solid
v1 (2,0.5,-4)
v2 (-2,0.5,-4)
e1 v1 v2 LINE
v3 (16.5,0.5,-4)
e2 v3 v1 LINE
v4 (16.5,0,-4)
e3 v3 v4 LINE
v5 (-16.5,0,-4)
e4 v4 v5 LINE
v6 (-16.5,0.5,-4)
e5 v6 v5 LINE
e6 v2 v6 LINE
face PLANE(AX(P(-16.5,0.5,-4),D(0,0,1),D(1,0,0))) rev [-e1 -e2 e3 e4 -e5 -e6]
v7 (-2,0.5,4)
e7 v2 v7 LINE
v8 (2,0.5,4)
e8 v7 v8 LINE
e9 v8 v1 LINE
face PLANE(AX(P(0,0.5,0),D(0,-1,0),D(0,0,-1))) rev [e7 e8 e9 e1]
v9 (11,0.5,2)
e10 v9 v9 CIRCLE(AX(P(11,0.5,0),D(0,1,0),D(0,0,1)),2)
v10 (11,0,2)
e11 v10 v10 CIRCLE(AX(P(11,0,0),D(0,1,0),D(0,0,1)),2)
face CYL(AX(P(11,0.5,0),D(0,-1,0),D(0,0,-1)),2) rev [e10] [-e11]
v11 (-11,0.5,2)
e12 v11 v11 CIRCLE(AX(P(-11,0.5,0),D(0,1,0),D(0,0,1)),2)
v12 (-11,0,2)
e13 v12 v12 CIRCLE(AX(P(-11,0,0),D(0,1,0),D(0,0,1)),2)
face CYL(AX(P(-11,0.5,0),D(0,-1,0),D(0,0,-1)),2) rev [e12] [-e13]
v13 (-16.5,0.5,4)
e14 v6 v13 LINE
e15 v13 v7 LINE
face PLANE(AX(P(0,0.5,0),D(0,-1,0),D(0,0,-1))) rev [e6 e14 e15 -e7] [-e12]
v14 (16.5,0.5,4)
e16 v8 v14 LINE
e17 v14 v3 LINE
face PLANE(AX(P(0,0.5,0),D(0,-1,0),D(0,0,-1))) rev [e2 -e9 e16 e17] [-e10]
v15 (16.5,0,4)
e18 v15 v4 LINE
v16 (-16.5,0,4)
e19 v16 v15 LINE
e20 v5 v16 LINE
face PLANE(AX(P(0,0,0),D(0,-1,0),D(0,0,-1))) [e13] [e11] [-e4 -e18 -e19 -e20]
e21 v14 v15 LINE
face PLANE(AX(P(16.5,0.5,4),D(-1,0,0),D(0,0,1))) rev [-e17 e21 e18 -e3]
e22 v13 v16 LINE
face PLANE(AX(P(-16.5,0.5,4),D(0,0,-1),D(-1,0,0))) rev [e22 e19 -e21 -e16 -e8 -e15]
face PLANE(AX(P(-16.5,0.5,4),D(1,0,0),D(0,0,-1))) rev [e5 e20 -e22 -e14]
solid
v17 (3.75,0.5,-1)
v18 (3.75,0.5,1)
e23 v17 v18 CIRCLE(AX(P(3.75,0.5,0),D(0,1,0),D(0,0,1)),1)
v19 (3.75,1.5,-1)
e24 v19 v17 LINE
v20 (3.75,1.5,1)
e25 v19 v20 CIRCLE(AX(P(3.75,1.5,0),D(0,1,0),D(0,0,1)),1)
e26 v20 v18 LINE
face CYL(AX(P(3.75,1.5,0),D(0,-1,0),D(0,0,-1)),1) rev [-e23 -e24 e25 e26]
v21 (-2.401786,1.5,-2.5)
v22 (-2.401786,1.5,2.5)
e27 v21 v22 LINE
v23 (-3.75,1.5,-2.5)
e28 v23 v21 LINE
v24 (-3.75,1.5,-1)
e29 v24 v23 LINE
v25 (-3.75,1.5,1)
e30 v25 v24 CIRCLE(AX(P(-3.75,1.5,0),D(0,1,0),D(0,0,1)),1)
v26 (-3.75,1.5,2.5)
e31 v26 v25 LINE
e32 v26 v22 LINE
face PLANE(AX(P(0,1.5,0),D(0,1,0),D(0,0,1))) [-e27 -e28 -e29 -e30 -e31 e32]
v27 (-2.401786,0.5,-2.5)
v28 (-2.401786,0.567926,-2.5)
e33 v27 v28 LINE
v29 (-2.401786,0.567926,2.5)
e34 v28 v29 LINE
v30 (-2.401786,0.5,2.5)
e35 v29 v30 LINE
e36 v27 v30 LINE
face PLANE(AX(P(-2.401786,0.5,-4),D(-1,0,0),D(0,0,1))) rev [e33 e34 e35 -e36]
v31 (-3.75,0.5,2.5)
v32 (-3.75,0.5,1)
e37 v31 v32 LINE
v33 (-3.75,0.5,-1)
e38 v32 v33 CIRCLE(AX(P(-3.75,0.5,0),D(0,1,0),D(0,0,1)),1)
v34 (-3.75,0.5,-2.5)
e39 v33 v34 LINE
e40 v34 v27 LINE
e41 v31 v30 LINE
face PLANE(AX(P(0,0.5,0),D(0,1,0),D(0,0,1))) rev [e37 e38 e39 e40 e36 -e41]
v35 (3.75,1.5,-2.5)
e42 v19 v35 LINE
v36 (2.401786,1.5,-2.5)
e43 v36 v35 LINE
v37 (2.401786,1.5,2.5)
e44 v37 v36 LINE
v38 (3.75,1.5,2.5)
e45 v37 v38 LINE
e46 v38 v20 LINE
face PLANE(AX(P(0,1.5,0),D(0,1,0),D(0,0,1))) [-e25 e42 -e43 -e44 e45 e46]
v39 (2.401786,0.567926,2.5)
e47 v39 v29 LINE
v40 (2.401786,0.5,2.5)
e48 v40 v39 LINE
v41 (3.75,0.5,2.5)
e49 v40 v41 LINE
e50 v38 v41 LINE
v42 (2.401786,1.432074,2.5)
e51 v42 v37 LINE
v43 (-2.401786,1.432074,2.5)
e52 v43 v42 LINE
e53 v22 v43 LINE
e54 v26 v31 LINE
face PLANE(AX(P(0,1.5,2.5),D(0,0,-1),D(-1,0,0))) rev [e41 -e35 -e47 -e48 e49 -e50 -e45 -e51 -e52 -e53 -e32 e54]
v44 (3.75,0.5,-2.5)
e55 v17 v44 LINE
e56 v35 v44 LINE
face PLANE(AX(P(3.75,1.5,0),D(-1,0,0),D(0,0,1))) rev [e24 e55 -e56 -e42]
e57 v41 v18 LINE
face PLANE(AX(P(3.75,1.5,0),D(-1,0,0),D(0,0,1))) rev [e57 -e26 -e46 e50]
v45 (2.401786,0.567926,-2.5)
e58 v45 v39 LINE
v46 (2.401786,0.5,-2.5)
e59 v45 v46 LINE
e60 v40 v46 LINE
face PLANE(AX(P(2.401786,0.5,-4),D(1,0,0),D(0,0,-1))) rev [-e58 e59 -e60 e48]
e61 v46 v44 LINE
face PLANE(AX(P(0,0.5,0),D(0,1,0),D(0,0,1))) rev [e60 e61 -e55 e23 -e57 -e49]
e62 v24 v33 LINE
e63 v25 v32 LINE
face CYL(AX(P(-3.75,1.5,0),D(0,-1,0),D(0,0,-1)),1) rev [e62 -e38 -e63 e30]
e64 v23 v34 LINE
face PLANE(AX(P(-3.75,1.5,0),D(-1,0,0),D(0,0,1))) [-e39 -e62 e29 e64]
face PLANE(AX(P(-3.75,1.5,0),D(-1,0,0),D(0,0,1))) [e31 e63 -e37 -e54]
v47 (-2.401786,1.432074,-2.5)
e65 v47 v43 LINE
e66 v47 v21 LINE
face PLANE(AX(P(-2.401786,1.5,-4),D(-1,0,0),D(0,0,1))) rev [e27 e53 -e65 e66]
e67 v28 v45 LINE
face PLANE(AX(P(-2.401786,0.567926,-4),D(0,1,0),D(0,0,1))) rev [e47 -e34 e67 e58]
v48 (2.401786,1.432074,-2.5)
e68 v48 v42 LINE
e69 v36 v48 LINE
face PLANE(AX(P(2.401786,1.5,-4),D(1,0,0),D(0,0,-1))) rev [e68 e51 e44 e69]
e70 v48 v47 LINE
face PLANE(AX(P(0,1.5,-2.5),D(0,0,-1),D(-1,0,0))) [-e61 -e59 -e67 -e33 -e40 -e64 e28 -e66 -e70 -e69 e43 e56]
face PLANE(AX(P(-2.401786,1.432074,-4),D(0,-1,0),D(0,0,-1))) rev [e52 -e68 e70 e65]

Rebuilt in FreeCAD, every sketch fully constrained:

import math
import FreeCAD as App
import Part
import Sketcher

V = App.Vector
Q = App.Units.Quantity


def add_polygon(sketch, points):
    """Adds a closed chain of lines whose ends are joined by coincident constraints."""
    first, n = sketch.GeometryCount, len(points)
    for a, b in zip(points, points[1:] + points[:1]):
        sketch.addGeometry(Part.LineSegment(App.Vector(*a, 0), App.Vector(*b, 0)), False)
    for i in range(n):
        sketch.addConstraint(Sketcher.Constraint("Coincident", first + i, 2, first + (i + 1) % n, 1))

doc = App.newDocument("Part")
body = doc.addObject("PartDesign::Body", "Body")

# Sketch on XZ plane
sketch1 = doc.addObject("Sketcher::SketchObject", "Sketch")
body.addObject(sketch1)
sketch1.AttachmentSupport = (doc.XZ_Plane, [""])
sketch1.MapMode = "FlatFace"
add_polygon(sketch1, [(-16.5, -4), (-16.5, 4), (16.5, 4), (16.5, -4)])  # lines 0-3
sketch1.addGeometry(Part.Circle(V(-11, 0, 0), V(0, 0, 1), 2), False)  # 4
sketch1.addGeometry(Part.Circle(V(11, 0, 0), V(0, 0, 1), 2), False)  # 5
sketch1.addConstraint(Sketcher.Constraint("Vertical", 0))
sketch1.addConstraint(Sketcher.Constraint("Horizontal", 1))
sketch1.addConstraint(Sketcher.Constraint("Vertical", 2))
sketch1.addConstraint(Sketcher.Constraint("Horizontal", 3))
sketch1.addConstraint(Sketcher.Constraint("Equal", 4, 5))
sketch1.addConstraint(Sketcher.Constraint("Symmetric", 4, 3, 5, 3, -1, 1))
sketch1.addConstraint(Sketcher.Constraint("Symmetric", 0, 2, 2, 2, -1, 1))
sketch1.addConstraint(Sketcher.Constraint("PointOnObject", 4, 3, -1))
sketch1.addConstraint(Sketcher.Constraint("Diameter", 4, Q("4 mm")))
sketch1.addConstraint(Sketcher.Constraint("DistanceX", 1, 1, 1, 2, Q("33 mm")))
sketch1.addConstraint(Sketcher.Constraint("DistanceY", 0, 1, 0, 2, Q("8 mm")))
sketch1.addConstraint(Sketcher.Constraint("DistanceX", 4, 3, -1, 1, Q("11 mm")))
pad1 = doc.addObject("PartDesign::Pad", "Pad")
body.addObject(pad1)
pad1.Profile = sketch1
pad1.Length = 0.5
pad1.Reversed = True
body2 = doc.addObject("PartDesign::Body", "Body001")

# Sketch on XZ plane
sketch2 = doc.addObject("Sketcher::SketchObject", "Sketch001")
body2.addObject(sketch2)
sketch2.AttachmentSupport = (doc.getObject("XZ_Plane001"), [""])
sketch2.MapMode = "FlatFace"
sketch2.AttachmentOffset = App.Placement(V(0, 0, -0.5), App.Rotation())
sketch2.addGeometry(Part.LineSegment(V(-3.75, 1, 0), V(-3.75, 2.5, 0)), False)
sketch2.addGeometry(Part.LineSegment(V(-3.75, 2.5, 0), V(3.75, 2.5, 0)), False)
sketch2.addGeometry(Part.LineSegment(V(3.75, 2.5, 0), V(3.75, 1, 0)), False)
sketch2.addGeometry(Part.ArcOfCircle(Part.Circle(V(3.75, 0, 0), V(0, 0, 1), 1), math.radians(90), math.radians(270)), False)
sketch2.addGeometry(Part.LineSegment(V(3.75, -1, 0), V(3.75, -2.5, 0)), False)
sketch2.addGeometry(Part.LineSegment(V(3.75, -2.5, 0), V(-3.75, -2.5, 0)), False)
sketch2.addGeometry(Part.LineSegment(V(-3.75, -2.5, 0), V(-3.75, -1, 0)), False)
sketch2.addGeometry(Part.ArcOfCircle(Part.Circle(V(-3.75, 0, 0), V(0, 0, 1), 1), math.radians(-90), math.radians(0)), False)
sketch2.addGeometry(Part.ArcOfCircle(Part.Circle(V(-3.75, 0, 0), V(0, 0, 1), 1), math.radians(0), math.radians(90)), False)
sketch2.addConstraint(Sketcher.Constraint("Coincident", 0, 2, 1, 1))
sketch2.addConstraint(Sketcher.Constraint("Coincident", 1, 2, 2, 1))
sketch2.addConstraint(Sketcher.Constraint("Coincident", 2, 2, 3, 1))
sketch2.addConstraint(Sketcher.Constraint("Coincident", 3, 2, 4, 1))
sketch2.addConstraint(Sketcher.Constraint("Coincident", 4, 2, 5, 1))
sketch2.addConstraint(Sketcher.Constraint("Coincident", 5, 2, 6, 1))
sketch2.addConstraint(Sketcher.Constraint("Coincident", 6, 2, 7, 1))
sketch2.addConstraint(Sketcher.Constraint("Tangent", 7, 2, 8, 1))
sketch2.addConstraint(Sketcher.Constraint("Coincident", 8, 2, 0, 1))
sketch2.addConstraint(Sketcher.Constraint("Vertical", 0))
sketch2.addConstraint(Sketcher.Constraint("Horizontal", 1))
sketch2.addConstraint(Sketcher.Constraint("Vertical", 2))
sketch2.addConstraint(Sketcher.Constraint("Vertical", 4))
sketch2.addConstraint(Sketcher.Constraint("Horizontal", 5))
sketch2.addConstraint(Sketcher.Constraint("Vertical", 6))
sketch2.addConstraint(Sketcher.Constraint("Equal", 3, 7))
sketch2.addConstraint(Sketcher.Constraint("Equal", 7, 8))
sketch2.addConstraint(Sketcher.Constraint("Symmetric", 3, 3, 7, 3, -1, 1))
sketch2.addConstraint(Sketcher.Constraint("Symmetric", 0, 2, 4, 2, -1, 1))
sketch2.addConstraint(Sketcher.Constraint("Symmetric", 3, 2, 6, 2, -2))
sketch2.addConstraint(Sketcher.Constraint("PointOnObject", 7, 2, -1))
sketch2.addConstraint(Sketcher.Constraint("Vertical", 8, 3, 0, 2))
sketch2.addConstraint(Sketcher.Constraint("Vertical", 3, 3, 1, 2))
sketch2.addConstraint(Sketcher.Constraint("Radius", 3, Q("1 mm")))
sketch2.addConstraint(Sketcher.Constraint("DistanceX", 1, 1, 1, 2, Q("7.5 mm")))
sketch2.addConstraint(Sketcher.Constraint("DistanceY", 0, 1, 0, 2, Q("1.5 mm")))
pad2 = doc.addObject("PartDesign::Pad", "Pad001")
body2.addObject(pad2)
pad2.Profile = sketch2
pad2.Length = 1
pad2.Reversed = True

# Sketch on XY plane
sketch3 = doc.addObject("Sketcher::SketchObject", "Sketch002")
body2.addObject(sketch3)
sketch3.AttachmentSupport = (doc.getObject("XY_Plane001"), [""])
sketch3.MapMode = "FlatFace"
sketch3.AttachmentOffset = App.Placement(V(0, 0, 2.5), App.Rotation())
add_polygon(sketch3, [(-2.401786, 1.5), (-2.401786, 1.432074), (2.401786, 1.432074), (2.401786, 1.5)])  # lines 0-3
add_polygon(sketch3, [(-2.401786, 0.567926), (-2.401786, 0.5), (2.401786, 0.5), (2.401786, 0.567926)])  # lines 4-7
sketch3.addConstraint(Sketcher.Constraint("Vertical", 0))
sketch3.addConstraint(Sketcher.Constraint("Horizontal", 1))
sketch3.addConstraint(Sketcher.Constraint("Vertical", 2))
sketch3.addConstraint(Sketcher.Constraint("Horizontal", 3))
sketch3.addConstraint(Sketcher.Constraint("Vertical", 4))
sketch3.addConstraint(Sketcher.Constraint("Horizontal", 5))
sketch3.addConstraint(Sketcher.Constraint("Vertical", 6))
sketch3.addConstraint(Sketcher.Constraint("Horizontal", 7))
sketch3.addConstraint(Sketcher.Constraint("Vertical", 3, 2, 4, 2))
sketch3.addConstraint(Sketcher.Constraint("Vertical", 2, 2, 5, 2))
sketch3.addConstraint(Sketcher.Constraint("Equal", 2, 4))
sketch3.addConstraint(Sketcher.Constraint("DistanceY", 4, 2, 3, 2, Q("1 mm")))
sketch3.addConstraint(Sketcher.Constraint("DistanceY", -1, 1, 2, 2, Q("1.5 mm")))
sketch3.addConstraint(Sketcher.Constraint("DistanceX", 1, 1, 1, 2, Q("4.803572 mm")))
sketch3.addConstraint(Sketcher.Constraint("DistanceY", 0, 2, 0, 1, Q("0.067926 mm")))
sketch3.addConstraint(Sketcher.Constraint("DistanceX", 0, 2, -1, 1, Q("2.401786 mm")))
pocket1 = doc.addObject("PartDesign::Pocket", "Pocket")
body2.addObject(pocket1)
pocket1.Profile = sketch3
pocket1.Type = "ThroughAll"

doc.recompute()
